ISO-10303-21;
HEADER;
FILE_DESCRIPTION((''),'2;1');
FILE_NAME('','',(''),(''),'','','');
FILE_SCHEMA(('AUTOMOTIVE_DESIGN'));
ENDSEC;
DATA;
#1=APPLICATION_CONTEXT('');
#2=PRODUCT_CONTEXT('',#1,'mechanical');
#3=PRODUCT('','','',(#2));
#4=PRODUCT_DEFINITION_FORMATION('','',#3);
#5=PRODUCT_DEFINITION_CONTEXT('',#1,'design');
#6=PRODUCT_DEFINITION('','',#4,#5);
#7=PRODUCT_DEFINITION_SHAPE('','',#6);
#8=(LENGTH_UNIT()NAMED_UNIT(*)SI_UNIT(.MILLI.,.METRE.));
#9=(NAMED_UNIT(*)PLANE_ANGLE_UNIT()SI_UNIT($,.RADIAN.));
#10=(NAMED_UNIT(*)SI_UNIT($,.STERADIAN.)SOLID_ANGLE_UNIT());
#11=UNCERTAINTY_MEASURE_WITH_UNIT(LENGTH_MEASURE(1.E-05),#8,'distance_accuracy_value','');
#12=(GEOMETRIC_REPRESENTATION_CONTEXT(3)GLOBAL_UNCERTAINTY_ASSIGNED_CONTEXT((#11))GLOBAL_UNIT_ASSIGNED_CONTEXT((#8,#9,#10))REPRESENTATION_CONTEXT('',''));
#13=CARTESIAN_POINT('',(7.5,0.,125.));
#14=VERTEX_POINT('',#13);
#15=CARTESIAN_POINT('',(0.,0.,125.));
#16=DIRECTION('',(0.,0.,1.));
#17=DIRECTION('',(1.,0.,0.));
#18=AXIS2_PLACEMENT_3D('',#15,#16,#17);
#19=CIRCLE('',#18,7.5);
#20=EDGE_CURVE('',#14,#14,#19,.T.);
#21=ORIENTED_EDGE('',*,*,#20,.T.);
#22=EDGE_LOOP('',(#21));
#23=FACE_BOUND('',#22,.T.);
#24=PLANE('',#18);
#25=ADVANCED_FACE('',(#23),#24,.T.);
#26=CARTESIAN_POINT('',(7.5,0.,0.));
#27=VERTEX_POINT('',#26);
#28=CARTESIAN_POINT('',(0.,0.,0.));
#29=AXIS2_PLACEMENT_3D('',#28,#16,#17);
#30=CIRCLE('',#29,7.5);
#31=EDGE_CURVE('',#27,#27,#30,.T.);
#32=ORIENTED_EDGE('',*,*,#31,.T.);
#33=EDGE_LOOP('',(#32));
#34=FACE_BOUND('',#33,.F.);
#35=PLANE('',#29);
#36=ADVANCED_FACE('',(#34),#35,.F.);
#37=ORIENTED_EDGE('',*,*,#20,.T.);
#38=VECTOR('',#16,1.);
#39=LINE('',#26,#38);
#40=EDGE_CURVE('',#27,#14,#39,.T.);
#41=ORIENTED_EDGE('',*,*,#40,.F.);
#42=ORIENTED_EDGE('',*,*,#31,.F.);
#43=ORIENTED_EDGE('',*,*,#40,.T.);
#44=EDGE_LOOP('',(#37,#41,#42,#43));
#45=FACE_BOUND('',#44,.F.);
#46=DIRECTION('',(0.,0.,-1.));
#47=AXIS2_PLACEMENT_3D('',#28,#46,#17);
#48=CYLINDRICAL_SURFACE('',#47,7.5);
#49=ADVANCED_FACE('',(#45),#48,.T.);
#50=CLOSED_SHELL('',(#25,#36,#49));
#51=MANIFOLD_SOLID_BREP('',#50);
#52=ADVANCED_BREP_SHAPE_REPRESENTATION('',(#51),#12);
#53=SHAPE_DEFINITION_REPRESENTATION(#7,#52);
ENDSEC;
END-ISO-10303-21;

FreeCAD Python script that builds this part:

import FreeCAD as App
import Part
import Sketcher

doc = App.newDocument("Part")
body = doc.addObject("PartDesign::Body", "Body")

sketch1 = doc.addObject("Sketcher::SketchObject", "Sketch")
body.addObject(sketch1)
sketch1.AttachmentSupport = (doc.XY_Plane, [""])
sketch1.MapMode = "FlatFace"
sketch1.addGeometry(Part.Circle(App.Vector(0, 0, 0), App.Vector(0, 0, 1), 8), False)
sketch1.addConstraint([
    Sketcher.Constraint("Coincident", 0, 3, -1, 1),
    Sketcher.Constraint("Diameter", 0, 15.0),
])
pad1 = doc.addObject("PartDesign::Pad", "Pad")
body.addObject(pad1)
pad1.Profile = sketch1
pad1.Length = 125

doc.recompute()
